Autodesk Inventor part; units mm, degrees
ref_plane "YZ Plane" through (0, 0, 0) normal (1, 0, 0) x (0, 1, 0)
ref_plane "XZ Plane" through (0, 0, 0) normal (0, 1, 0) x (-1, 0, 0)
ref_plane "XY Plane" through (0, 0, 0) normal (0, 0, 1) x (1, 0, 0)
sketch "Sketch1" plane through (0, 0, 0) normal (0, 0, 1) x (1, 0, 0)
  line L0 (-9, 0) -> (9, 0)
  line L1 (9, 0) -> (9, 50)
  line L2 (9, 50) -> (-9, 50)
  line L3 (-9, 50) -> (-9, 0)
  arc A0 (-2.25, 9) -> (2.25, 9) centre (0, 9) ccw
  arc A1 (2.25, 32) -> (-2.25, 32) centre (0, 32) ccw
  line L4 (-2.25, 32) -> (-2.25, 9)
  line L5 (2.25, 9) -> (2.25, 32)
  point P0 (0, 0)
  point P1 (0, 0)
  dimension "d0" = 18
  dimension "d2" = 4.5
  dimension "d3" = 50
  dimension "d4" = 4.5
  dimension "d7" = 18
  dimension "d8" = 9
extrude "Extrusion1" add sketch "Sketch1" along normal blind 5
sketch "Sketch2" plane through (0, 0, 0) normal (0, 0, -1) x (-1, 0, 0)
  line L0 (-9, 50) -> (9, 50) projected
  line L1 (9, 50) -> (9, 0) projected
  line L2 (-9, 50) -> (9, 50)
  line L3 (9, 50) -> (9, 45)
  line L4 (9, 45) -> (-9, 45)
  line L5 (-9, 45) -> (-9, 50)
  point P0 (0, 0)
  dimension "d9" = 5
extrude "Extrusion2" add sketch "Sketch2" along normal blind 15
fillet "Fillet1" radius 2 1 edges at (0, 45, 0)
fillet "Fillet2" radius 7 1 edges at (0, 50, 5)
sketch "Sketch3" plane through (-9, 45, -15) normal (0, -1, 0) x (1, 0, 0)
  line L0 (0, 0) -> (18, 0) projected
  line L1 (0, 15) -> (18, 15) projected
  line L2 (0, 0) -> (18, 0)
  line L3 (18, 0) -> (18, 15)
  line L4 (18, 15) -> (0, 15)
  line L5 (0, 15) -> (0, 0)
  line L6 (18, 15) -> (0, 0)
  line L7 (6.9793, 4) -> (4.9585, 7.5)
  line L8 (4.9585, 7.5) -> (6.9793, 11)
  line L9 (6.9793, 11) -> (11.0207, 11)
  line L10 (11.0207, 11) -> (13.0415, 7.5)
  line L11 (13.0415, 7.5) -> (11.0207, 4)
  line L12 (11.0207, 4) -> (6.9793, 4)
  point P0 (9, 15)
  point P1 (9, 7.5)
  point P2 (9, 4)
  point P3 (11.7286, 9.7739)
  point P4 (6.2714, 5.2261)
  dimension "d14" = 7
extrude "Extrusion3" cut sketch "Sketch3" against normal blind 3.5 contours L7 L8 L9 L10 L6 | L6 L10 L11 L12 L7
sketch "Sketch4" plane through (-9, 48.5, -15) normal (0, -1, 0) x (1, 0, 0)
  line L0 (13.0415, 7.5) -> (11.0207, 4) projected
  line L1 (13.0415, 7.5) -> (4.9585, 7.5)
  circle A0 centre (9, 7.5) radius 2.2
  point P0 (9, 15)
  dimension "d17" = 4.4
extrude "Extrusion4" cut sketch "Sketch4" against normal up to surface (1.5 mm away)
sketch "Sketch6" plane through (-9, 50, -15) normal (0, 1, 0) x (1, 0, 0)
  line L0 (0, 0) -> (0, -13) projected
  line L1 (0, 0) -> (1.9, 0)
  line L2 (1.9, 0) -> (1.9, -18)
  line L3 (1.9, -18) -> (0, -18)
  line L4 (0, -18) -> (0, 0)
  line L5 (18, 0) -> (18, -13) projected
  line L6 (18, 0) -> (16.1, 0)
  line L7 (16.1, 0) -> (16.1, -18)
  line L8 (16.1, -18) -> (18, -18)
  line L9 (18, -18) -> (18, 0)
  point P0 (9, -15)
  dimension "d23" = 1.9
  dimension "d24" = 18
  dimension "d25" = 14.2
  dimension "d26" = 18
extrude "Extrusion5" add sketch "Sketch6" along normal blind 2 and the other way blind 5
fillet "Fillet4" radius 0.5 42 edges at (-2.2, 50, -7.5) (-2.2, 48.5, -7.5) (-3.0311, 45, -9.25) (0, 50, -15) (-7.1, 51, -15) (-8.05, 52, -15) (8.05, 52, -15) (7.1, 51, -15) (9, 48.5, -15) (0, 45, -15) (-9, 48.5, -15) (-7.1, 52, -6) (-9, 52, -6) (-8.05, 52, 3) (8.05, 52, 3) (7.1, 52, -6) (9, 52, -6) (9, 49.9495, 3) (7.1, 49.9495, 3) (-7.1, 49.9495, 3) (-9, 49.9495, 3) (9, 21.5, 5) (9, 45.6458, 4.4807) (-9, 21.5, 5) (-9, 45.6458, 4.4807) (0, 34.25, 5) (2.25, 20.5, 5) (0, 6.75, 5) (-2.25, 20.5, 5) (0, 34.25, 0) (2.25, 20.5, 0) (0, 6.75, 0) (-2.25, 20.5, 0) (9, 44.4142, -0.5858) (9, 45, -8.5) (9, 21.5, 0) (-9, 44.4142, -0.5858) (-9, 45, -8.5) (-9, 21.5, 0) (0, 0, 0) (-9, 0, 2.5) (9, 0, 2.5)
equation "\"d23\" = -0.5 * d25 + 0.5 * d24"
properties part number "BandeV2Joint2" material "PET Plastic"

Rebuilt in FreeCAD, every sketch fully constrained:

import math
import FreeCAD as App
import Part
import Sketcher

V = App.Vector
Q = App.Units.Quantity


def edges_at(feature, points):
    """Names of the edges that pass closest to the given points."""
    edges = feature.Shape.Edges
    near = lambda p: min(range(len(edges)), key=lambda i: edges[i].distToShape(Part.Vertex(*p))[0])
    return sorted({f"Edge{near(p) + 1}" for p in points})

doc = App.newDocument("Part")
body = doc.addObject("PartDesign::Body", "Body")

# Sketch on XY plane
sketch1 = body.newObject("Sketcher::SketchObject", "Sketch")
sketch1.AttachmentSupport = (doc.getObject("XY_Plane"), [""])
sketch1.MapMode = "FlatFace"
sketch1.addGeometry(Part.LineSegment(V(-9, 50, 0), V(-9, 0, 0)), False)
sketch1.addGeometry(Part.LineSegment(V(-9, 0, 0), V(9, 0, 0)), False)
sketch1.addGeometry(Part.LineSegment(V(9, 0, 0), V(9, 50, 0)), False)
sketch1.addGeometry(Part.LineSegment(V(9, 50, 0), V(-9, 50, 0)), False)
sketch1.addGeometry(Part.ArcOfCircle(Part.Circle(V(0, 9, 0), V(0, 0, 1), 2.2), math.radians(180), math.radians(360)), False)
sketch1.addGeometry(Part.LineSegment(V(-2.2, 9, 0), V(-2.2, 32, 0)), False)
sketch1.addGeometry(Part.ArcOfCircle(Part.Circle(V(0, 32, 0), V(0, 0, 1), 2.2), math.radians(0), math.radians(180)), False)
sketch1.addGeometry(Part.LineSegment(V(2.2, 32, 0), V(2.2, 9, 0)), False)
sketch1.addConstraint(Sketcher.Constraint("Coincident", 0, 2, 1, 1))
sketch1.addConstraint(Sketcher.Constraint("Coincident", 1, 2, 2, 1))
sketch1.addConstraint(Sketcher.Constraint("Coincident", 2, 2, 3, 1))
sketch1.addConstraint(Sketcher.Constraint("Coincident", 3, 2, 0, 1))
sketch1.addConstraint(Sketcher.Constraint("Tangent", 4, 1, 5, 1))
sketch1.addConstraint(Sketcher.Constraint("Tangent", 5, 2, 6, 2))
sketch1.addConstraint(Sketcher.Constraint("Tangent", 6, 1, 7, 1))
sketch1.addConstraint(Sketcher.Constraint("Tangent", 7, 2, 4, 2))
sketch1.addConstraint(Sketcher.Constraint("Vertical", 0))
sketch1.addConstraint(Sketcher.Constraint("Horizontal", 1))
sketch1.addConstraint(Sketcher.Constraint("Vertical", 2))
sketch1.addConstraint(Sketcher.Constraint("Horizontal", 3))
sketch1.addConstraint(Sketcher.Constraint("Vertical", 5))
sketch1.addConstraint(Sketcher.Constraint("Vertical", 7))
sketch1.addConstraint(Sketcher.Constraint("Symmetric", 0, 2, 1, 2, -1, 1))
sketch1.addConstraint(Sketcher.Constraint("PointOnObject", 4, 3, -2))
sketch1.addConstraint(Sketcher.Constraint("DistanceX", 1, 1, 1, 2, Q("18 mm")))
sketch1.addConstraint(Sketcher.Constraint("DistanceY", 0, 2, 0, 1, Q("50 mm")))
sketch1.addConstraint(Sketcher.Constraint("Radius", 4, Q("2.25 mm")))
sketch1.addConstraint(Sketcher.Constraint("DistanceY", -1, 1, 4, 3, Q("9 mm")))
sketch1.addConstraint(Sketcher.Constraint("DistanceY", 6, 3, 2, 2, Q("18 mm")))
pad1 = body.newObject("PartDesign::Pad", "Pad")
pad1.Profile = sketch1
pad1.Length = 5

# Sketch on XY plane
sketch2 = body.newObject("Sketcher::SketchObject", "Sketch001")
sketch2.AttachmentSupport = (doc.getObject("XY_Plane"), [""])
sketch2.MapMode = "FlatFace"
sketch2.addGeometry(Part.LineSegment(V(-9, 50, 0), V(9, 50, 0)), False)
sketch2.addGeometry(Part.LineSegment(V(9, 50, 0), V(9, 45, 0)), False)
sketch2.addGeometry(Part.LineSegment(V(9, 45, 0), V(-9, 45, 0)), False)
sketch2.addGeometry(Part.LineSegment(V(-9, 45, 0), V(-9, 50, 0)), False)
sketch2.addConstraint(Sketcher.Constraint("Coincident", 0, 2, 1, 1))
sketch2.addConstraint(Sketcher.Constraint("Coincident", 1, 2, 2, 1))
sketch2.addConstraint(Sketcher.Constraint("Coincident", 2, 2, 3, 1))
sketch2.addConstraint(Sketcher.Constraint("Coincident", 3, 2, 0, 1))
sketch2.addConstraint(Sketcher.Constraint("Horizontal", 0))
sketch2.addConstraint(Sketcher.Constraint("Vertical", 1))
sketch2.addConstraint(Sketcher.Constraint("Horizontal", 2))
sketch2.addConstraint(Sketcher.Constraint("Vertical", 3))
sketch2.addConstraint(Sketcher.Constraint("DistanceY", 1, 2, 1, 1, Q("5 mm")))
sketch2.addConstraint(Sketcher.Constraint("DistanceX", 0, 1, 0, 2, Q("18 mm")))
sketch2.addConstraint(Sketcher.Constraint("DistanceX", -1, 1, 0, 2, Q("9 mm")))
sketch2.addConstraint(Sketcher.Constraint("DistanceY", -1, 1, 0, 2, Q("50 mm")))
pad2 = body.newObject("PartDesign::Pad", "Pad001")
pad2.Profile = sketch2
pad2.Length = 15
pad2.Reversed = True
doc.recompute()

fillet = body.newObject("PartDesign::Fillet", "Fillet")
fillet.Base = (pad2, edges_at(pad2, [(0, 45, 0)]))
fillet.Radius = 2
doc.recompute()

fillet2 = body.newObject("PartDesign::Fillet", "Fillet001")
fillet2.Base = (fillet, edges_at(fillet, [(0, 50, 5)]))
fillet2.Radius = 7

# Sketch on XZ plane
sketch3 = body.newObject("Sketcher::SketchObject", "Sketch002")
sketch3.AttachmentSupport = (doc.getObject("XZ_Plane"), [""])
sketch3.MapMode = "FlatFace"
sketch3.AttachmentOffset = App.Placement(V(0, 0, -45), App.Rotation())
sketch3.addGeometry(Part.LineSegment(V(-4, -7.5, 0), V(-2, -11, 0)), False)
sketch3.addGeometry(Part.LineSegment(V(-2, -11, 0), V(2, -11, 0)), False)
sketch3.addGeometry(Part.LineSegment(V(2, -11, 0), V(4, -7.5, 0)), False)
sketch3.addGeometry(Part.LineSegment(V(4, -7.5, 0), V(2, -4, 0)), False)
sketch3.addGeometry(Part.LineSegment(V(2, -4, 0), V(-2, -4, 0)), False)
sketch3.addGeometry(Part.LineSegment(V(-2, -4, 0), V(-4, -7.5, 0)), False)
sketch3.addConstraint(Sketcher.Constraint("Coincident", 0, 2, 1, 1))
sketch3.addConstraint(Sketcher.Constraint("Coincident", 1, 2, 2, 1))
sketch3.addConstraint(Sketcher.Constraint("Coincident", 2, 2, 3, 1))
sketch3.addConstraint(Sketcher.Constraint("Coincident", 3, 2, 4, 1))
sketch3.addConstraint(Sketcher.Constraint("Coincident", 4, 2, 5, 1))
sketch3.addConstraint(Sketcher.Constraint("Coincident", 5, 2, 0, 1))
sketch3.addConstraint(Sketcher.Constraint("Horizontal", 1))
sketch3.addConstraint(Sketcher.Constraint("Horizontal", 4))
sketch3.addConstraint(Sketcher.Constraint("Symmetric", 2, 2, 5, 2, -2))
sketch3.addConstraint(Sketcher.Constraint("Parallel", 0, 3))
sketch3.addConstraint(Sketcher.Constraint("Parallel", 2, 5))
sketch3.addConstraint(Sketcher.Constraint("Vertical", 1, 2, 3, 2))
sketch3.addConstraint(Sketcher.Constraint("Vertical", 0, 2, 4, 2))
sketch3.addConstraint(Sketcher.Constraint("DistanceY", 1, 2, 3, 2, Q("7 mm")))
sketch3.addConstraint(Sketcher.Constraint("Angle", 0, Q("-59.999 deg")))
sketch3.addConstraint(Sketcher.Constraint("DistanceY", 0, 2, -1, 1, Q("11 mm")))
sketch3.addConstraint(Sketcher.Constraint("DistanceX", 1, 1, 1, 2, Q("4.0414 mm")))
pocket1 = body.newObject("PartDesign::Pocket", "Pocket")
pocket1.Profile = sketch3
pocket1.Length = 3.5

# Sketch on XZ plane
sketch4 = body.newObject("Sketcher::SketchObject", "Sketch003")
sketch4.AttachmentSupport = (doc.getObject("XZ_Plane"), [""])
sketch4.MapMode = "FlatFace"
sketch4.AttachmentOffset = App.Placement(V(0, 0, -48.5), App.Rotation())
sketch4.addGeometry(Part.Circle(V(0, -7.5, 0), V(0, 0, 1), 2.2), False)
sketch4.addConstraint(Sketcher.Constraint("PointOnObject", 0, 3, -2))
sketch4.addConstraint(Sketcher.Constraint("Diameter", 0, Q("4.4 mm")))
sketch4.addConstraint(Sketcher.Constraint("DistanceY", 0, 3, -1, 1, Q("7.5 mm")))
pocket2 = body.newObject("PartDesign::Pocket", "Pocket001")
pocket2.Profile = sketch4
pocket2.Length = 1.5

# Sketch on XZ plane
sketch5 = body.newObject("Sketcher::SketchObject", "Sketch004")
sketch5.AttachmentSupport = (doc.getObject("XZ_Plane"), [""])
sketch5.MapMode = "FlatFace"
sketch5.AttachmentOffset = App.Placement(V(0, 0, -50), App.Rotation())
sketch5.addGeometry(Part.LineSegment(V(-7.1, -15, 0), V(-9, -15, 0)), False)
sketch5.addGeometry(Part.LineSegment(V(-9, -15, 0), V(-9, 3, 0)), False)
sketch5.addGeometry(Part.LineSegment(V(-9, 3, 0), V(-7.1, 3, 0)), False)
sketch5.addGeometry(Part.LineSegment(V(-7.1, 3, 0), V(-7.1, -15, 0)), False)
sketch5.addGeometry(Part.LineSegment(V(9, 3, 0), V(9, -15, 0)), False)
sketch5.addGeometry(Part.LineSegment(V(9, -15, 0), V(7.1, -15, 0)), False)
sketch5.addGeometry(Part.LineSegment(V(7.1, -15, 0), V(7.1, 3, 0)), False)
sketch5.addGeometry(Part.LineSegment(V(7.1, 3, 0), V(9, 3, 0)), False)
sketch5.addConstraint(Sketcher.Constraint("Coincident", 0, 2, 1, 1))
sketch5.addConstraint(Sketcher.Constraint("Coincident", 1, 2, 2, 1))
sketch5.addConstraint(Sketcher.Constraint("Coincident", 2, 2, 3, 1))
sketch5.addConstraint(Sketcher.Constraint("Coincident", 3, 2, 0, 1))
sketch5.addConstraint(Sketcher.Constraint("Coincident", 4, 2, 5, 1))
sketch5.addConstraint(Sketcher.Constraint("Coincident", 5, 2, 6, 1))
sketch5.addConstraint(Sketcher.Constraint("Coincident", 6, 2, 7, 1))
sketch5.addConstraint(Sketcher.Constraint("Coincident", 7, 2, 4, 1))
sketch5.addConstraint(Sketcher.Constraint("Horizontal", 0))
sketch5.addConstraint(Sketcher.Constraint("Vertical", 1))
sketch5.addConstraint(Sketcher.Constraint("Horizontal", 2))
sketch5.addConstraint(Sketcher.Constraint("Vertical", 3))
sketch5.addConstraint(Sketcher.Constraint("Vertical", 4))
sketch5.addConstraint(Sketcher.Constraint("Horizontal", 5))
sketch5.addConstraint(Sketcher.Constraint("Vertical", 6))
sketch5.addConstraint(Sketcher.Constraint("Horizontal", 7))
sketch5.addConstraint(Sketcher.Constraint("Symmetric", 0, 2, 4, 2, -2))
sketch5.addConstraint(Sketcher.Constraint("Symmetric", 2, 2, 6, 2, -2))
sketch5.addConstraint(Sketcher.Constraint("DistanceY", 1, 1, 1, 2, Q("18 mm")))
sketch5.addConstraint(Sketcher.Constraint("DistanceX", 0, 2, 0, 1, Q("1.9 mm")))
sketch5.addConstraint(Sketcher.Constraint("DistanceX", 0, 2, 4, 2, Q("18 mm")))
sketch5.addConstraint(Sketcher.Constraint("DistanceY", 0, 2, -1, 1, Q("15 mm")))
pad3 = body.newObject("PartDesign::Pad", "Pad002")
pad3.Profile = sketch5
pad3.Type = "TwoLengths"
pad3.Length = 2
pad3.Length2 = 5
pad3.Reversed = True
doc.recompute()

fillet3 = body.newObject("PartDesign::Fillet", "Fillet002")
fillet3.Base = (pad3, edges_at(pad3, [
    (-2.2, 50, -7.5),
    (-2.2, 48.5, -7.5),
    (-3.031, 45, -9.25),
    (0, 50, -15),
    (-7.1, 51, -15),
    (-8.05, 52, -15),
    (8.05, 52, -15),
    (7.1, 51, -15),
    (9, 48.5, -15),
    (0, 45, -15),
    (-9, 48.5, -15),
    (-7.1, 52, -6),
    (-9, 52, -6),
    (-8.05, 52, 3),
    (8.05, 52, 3),
    (7.1, 52, -6),
    (9, 52, -6),
    (9, 49.95, 3),
    (7.1, 49.95, 3),
    (-7.1, 49.95, 3),
    (-9, 49.95, 3),
    (9, 21.5, 5),
    (9, 45.646, 4.481),
    (-9, 21.5, 5),
    (-9, 45.646, 4.481),
    (0, 34.25, 5),
    (2.25, 20.5, 5),
    (0, 6.75, 5),
    (-2.25, 20.5, 5),
    (0, 34.25, 0),
    (2.25, 20.5, 0),
    (0, 6.75, 0),
    (-2.25, 20.5, 0),
    (9, 44.414, -0.586),
    (9, 45, -8.5),
    (9, 21.5, 0),
    (-9, 44.414, -0.586),
    (-9, 45, -8.5),
    (-9, 21.5, 0),
    (0, 0, 0),
    (-9, 0, 2.5),
    (9, 0, 2.5),
]))
fillet3.Radius = 0.5

doc.recompute()
